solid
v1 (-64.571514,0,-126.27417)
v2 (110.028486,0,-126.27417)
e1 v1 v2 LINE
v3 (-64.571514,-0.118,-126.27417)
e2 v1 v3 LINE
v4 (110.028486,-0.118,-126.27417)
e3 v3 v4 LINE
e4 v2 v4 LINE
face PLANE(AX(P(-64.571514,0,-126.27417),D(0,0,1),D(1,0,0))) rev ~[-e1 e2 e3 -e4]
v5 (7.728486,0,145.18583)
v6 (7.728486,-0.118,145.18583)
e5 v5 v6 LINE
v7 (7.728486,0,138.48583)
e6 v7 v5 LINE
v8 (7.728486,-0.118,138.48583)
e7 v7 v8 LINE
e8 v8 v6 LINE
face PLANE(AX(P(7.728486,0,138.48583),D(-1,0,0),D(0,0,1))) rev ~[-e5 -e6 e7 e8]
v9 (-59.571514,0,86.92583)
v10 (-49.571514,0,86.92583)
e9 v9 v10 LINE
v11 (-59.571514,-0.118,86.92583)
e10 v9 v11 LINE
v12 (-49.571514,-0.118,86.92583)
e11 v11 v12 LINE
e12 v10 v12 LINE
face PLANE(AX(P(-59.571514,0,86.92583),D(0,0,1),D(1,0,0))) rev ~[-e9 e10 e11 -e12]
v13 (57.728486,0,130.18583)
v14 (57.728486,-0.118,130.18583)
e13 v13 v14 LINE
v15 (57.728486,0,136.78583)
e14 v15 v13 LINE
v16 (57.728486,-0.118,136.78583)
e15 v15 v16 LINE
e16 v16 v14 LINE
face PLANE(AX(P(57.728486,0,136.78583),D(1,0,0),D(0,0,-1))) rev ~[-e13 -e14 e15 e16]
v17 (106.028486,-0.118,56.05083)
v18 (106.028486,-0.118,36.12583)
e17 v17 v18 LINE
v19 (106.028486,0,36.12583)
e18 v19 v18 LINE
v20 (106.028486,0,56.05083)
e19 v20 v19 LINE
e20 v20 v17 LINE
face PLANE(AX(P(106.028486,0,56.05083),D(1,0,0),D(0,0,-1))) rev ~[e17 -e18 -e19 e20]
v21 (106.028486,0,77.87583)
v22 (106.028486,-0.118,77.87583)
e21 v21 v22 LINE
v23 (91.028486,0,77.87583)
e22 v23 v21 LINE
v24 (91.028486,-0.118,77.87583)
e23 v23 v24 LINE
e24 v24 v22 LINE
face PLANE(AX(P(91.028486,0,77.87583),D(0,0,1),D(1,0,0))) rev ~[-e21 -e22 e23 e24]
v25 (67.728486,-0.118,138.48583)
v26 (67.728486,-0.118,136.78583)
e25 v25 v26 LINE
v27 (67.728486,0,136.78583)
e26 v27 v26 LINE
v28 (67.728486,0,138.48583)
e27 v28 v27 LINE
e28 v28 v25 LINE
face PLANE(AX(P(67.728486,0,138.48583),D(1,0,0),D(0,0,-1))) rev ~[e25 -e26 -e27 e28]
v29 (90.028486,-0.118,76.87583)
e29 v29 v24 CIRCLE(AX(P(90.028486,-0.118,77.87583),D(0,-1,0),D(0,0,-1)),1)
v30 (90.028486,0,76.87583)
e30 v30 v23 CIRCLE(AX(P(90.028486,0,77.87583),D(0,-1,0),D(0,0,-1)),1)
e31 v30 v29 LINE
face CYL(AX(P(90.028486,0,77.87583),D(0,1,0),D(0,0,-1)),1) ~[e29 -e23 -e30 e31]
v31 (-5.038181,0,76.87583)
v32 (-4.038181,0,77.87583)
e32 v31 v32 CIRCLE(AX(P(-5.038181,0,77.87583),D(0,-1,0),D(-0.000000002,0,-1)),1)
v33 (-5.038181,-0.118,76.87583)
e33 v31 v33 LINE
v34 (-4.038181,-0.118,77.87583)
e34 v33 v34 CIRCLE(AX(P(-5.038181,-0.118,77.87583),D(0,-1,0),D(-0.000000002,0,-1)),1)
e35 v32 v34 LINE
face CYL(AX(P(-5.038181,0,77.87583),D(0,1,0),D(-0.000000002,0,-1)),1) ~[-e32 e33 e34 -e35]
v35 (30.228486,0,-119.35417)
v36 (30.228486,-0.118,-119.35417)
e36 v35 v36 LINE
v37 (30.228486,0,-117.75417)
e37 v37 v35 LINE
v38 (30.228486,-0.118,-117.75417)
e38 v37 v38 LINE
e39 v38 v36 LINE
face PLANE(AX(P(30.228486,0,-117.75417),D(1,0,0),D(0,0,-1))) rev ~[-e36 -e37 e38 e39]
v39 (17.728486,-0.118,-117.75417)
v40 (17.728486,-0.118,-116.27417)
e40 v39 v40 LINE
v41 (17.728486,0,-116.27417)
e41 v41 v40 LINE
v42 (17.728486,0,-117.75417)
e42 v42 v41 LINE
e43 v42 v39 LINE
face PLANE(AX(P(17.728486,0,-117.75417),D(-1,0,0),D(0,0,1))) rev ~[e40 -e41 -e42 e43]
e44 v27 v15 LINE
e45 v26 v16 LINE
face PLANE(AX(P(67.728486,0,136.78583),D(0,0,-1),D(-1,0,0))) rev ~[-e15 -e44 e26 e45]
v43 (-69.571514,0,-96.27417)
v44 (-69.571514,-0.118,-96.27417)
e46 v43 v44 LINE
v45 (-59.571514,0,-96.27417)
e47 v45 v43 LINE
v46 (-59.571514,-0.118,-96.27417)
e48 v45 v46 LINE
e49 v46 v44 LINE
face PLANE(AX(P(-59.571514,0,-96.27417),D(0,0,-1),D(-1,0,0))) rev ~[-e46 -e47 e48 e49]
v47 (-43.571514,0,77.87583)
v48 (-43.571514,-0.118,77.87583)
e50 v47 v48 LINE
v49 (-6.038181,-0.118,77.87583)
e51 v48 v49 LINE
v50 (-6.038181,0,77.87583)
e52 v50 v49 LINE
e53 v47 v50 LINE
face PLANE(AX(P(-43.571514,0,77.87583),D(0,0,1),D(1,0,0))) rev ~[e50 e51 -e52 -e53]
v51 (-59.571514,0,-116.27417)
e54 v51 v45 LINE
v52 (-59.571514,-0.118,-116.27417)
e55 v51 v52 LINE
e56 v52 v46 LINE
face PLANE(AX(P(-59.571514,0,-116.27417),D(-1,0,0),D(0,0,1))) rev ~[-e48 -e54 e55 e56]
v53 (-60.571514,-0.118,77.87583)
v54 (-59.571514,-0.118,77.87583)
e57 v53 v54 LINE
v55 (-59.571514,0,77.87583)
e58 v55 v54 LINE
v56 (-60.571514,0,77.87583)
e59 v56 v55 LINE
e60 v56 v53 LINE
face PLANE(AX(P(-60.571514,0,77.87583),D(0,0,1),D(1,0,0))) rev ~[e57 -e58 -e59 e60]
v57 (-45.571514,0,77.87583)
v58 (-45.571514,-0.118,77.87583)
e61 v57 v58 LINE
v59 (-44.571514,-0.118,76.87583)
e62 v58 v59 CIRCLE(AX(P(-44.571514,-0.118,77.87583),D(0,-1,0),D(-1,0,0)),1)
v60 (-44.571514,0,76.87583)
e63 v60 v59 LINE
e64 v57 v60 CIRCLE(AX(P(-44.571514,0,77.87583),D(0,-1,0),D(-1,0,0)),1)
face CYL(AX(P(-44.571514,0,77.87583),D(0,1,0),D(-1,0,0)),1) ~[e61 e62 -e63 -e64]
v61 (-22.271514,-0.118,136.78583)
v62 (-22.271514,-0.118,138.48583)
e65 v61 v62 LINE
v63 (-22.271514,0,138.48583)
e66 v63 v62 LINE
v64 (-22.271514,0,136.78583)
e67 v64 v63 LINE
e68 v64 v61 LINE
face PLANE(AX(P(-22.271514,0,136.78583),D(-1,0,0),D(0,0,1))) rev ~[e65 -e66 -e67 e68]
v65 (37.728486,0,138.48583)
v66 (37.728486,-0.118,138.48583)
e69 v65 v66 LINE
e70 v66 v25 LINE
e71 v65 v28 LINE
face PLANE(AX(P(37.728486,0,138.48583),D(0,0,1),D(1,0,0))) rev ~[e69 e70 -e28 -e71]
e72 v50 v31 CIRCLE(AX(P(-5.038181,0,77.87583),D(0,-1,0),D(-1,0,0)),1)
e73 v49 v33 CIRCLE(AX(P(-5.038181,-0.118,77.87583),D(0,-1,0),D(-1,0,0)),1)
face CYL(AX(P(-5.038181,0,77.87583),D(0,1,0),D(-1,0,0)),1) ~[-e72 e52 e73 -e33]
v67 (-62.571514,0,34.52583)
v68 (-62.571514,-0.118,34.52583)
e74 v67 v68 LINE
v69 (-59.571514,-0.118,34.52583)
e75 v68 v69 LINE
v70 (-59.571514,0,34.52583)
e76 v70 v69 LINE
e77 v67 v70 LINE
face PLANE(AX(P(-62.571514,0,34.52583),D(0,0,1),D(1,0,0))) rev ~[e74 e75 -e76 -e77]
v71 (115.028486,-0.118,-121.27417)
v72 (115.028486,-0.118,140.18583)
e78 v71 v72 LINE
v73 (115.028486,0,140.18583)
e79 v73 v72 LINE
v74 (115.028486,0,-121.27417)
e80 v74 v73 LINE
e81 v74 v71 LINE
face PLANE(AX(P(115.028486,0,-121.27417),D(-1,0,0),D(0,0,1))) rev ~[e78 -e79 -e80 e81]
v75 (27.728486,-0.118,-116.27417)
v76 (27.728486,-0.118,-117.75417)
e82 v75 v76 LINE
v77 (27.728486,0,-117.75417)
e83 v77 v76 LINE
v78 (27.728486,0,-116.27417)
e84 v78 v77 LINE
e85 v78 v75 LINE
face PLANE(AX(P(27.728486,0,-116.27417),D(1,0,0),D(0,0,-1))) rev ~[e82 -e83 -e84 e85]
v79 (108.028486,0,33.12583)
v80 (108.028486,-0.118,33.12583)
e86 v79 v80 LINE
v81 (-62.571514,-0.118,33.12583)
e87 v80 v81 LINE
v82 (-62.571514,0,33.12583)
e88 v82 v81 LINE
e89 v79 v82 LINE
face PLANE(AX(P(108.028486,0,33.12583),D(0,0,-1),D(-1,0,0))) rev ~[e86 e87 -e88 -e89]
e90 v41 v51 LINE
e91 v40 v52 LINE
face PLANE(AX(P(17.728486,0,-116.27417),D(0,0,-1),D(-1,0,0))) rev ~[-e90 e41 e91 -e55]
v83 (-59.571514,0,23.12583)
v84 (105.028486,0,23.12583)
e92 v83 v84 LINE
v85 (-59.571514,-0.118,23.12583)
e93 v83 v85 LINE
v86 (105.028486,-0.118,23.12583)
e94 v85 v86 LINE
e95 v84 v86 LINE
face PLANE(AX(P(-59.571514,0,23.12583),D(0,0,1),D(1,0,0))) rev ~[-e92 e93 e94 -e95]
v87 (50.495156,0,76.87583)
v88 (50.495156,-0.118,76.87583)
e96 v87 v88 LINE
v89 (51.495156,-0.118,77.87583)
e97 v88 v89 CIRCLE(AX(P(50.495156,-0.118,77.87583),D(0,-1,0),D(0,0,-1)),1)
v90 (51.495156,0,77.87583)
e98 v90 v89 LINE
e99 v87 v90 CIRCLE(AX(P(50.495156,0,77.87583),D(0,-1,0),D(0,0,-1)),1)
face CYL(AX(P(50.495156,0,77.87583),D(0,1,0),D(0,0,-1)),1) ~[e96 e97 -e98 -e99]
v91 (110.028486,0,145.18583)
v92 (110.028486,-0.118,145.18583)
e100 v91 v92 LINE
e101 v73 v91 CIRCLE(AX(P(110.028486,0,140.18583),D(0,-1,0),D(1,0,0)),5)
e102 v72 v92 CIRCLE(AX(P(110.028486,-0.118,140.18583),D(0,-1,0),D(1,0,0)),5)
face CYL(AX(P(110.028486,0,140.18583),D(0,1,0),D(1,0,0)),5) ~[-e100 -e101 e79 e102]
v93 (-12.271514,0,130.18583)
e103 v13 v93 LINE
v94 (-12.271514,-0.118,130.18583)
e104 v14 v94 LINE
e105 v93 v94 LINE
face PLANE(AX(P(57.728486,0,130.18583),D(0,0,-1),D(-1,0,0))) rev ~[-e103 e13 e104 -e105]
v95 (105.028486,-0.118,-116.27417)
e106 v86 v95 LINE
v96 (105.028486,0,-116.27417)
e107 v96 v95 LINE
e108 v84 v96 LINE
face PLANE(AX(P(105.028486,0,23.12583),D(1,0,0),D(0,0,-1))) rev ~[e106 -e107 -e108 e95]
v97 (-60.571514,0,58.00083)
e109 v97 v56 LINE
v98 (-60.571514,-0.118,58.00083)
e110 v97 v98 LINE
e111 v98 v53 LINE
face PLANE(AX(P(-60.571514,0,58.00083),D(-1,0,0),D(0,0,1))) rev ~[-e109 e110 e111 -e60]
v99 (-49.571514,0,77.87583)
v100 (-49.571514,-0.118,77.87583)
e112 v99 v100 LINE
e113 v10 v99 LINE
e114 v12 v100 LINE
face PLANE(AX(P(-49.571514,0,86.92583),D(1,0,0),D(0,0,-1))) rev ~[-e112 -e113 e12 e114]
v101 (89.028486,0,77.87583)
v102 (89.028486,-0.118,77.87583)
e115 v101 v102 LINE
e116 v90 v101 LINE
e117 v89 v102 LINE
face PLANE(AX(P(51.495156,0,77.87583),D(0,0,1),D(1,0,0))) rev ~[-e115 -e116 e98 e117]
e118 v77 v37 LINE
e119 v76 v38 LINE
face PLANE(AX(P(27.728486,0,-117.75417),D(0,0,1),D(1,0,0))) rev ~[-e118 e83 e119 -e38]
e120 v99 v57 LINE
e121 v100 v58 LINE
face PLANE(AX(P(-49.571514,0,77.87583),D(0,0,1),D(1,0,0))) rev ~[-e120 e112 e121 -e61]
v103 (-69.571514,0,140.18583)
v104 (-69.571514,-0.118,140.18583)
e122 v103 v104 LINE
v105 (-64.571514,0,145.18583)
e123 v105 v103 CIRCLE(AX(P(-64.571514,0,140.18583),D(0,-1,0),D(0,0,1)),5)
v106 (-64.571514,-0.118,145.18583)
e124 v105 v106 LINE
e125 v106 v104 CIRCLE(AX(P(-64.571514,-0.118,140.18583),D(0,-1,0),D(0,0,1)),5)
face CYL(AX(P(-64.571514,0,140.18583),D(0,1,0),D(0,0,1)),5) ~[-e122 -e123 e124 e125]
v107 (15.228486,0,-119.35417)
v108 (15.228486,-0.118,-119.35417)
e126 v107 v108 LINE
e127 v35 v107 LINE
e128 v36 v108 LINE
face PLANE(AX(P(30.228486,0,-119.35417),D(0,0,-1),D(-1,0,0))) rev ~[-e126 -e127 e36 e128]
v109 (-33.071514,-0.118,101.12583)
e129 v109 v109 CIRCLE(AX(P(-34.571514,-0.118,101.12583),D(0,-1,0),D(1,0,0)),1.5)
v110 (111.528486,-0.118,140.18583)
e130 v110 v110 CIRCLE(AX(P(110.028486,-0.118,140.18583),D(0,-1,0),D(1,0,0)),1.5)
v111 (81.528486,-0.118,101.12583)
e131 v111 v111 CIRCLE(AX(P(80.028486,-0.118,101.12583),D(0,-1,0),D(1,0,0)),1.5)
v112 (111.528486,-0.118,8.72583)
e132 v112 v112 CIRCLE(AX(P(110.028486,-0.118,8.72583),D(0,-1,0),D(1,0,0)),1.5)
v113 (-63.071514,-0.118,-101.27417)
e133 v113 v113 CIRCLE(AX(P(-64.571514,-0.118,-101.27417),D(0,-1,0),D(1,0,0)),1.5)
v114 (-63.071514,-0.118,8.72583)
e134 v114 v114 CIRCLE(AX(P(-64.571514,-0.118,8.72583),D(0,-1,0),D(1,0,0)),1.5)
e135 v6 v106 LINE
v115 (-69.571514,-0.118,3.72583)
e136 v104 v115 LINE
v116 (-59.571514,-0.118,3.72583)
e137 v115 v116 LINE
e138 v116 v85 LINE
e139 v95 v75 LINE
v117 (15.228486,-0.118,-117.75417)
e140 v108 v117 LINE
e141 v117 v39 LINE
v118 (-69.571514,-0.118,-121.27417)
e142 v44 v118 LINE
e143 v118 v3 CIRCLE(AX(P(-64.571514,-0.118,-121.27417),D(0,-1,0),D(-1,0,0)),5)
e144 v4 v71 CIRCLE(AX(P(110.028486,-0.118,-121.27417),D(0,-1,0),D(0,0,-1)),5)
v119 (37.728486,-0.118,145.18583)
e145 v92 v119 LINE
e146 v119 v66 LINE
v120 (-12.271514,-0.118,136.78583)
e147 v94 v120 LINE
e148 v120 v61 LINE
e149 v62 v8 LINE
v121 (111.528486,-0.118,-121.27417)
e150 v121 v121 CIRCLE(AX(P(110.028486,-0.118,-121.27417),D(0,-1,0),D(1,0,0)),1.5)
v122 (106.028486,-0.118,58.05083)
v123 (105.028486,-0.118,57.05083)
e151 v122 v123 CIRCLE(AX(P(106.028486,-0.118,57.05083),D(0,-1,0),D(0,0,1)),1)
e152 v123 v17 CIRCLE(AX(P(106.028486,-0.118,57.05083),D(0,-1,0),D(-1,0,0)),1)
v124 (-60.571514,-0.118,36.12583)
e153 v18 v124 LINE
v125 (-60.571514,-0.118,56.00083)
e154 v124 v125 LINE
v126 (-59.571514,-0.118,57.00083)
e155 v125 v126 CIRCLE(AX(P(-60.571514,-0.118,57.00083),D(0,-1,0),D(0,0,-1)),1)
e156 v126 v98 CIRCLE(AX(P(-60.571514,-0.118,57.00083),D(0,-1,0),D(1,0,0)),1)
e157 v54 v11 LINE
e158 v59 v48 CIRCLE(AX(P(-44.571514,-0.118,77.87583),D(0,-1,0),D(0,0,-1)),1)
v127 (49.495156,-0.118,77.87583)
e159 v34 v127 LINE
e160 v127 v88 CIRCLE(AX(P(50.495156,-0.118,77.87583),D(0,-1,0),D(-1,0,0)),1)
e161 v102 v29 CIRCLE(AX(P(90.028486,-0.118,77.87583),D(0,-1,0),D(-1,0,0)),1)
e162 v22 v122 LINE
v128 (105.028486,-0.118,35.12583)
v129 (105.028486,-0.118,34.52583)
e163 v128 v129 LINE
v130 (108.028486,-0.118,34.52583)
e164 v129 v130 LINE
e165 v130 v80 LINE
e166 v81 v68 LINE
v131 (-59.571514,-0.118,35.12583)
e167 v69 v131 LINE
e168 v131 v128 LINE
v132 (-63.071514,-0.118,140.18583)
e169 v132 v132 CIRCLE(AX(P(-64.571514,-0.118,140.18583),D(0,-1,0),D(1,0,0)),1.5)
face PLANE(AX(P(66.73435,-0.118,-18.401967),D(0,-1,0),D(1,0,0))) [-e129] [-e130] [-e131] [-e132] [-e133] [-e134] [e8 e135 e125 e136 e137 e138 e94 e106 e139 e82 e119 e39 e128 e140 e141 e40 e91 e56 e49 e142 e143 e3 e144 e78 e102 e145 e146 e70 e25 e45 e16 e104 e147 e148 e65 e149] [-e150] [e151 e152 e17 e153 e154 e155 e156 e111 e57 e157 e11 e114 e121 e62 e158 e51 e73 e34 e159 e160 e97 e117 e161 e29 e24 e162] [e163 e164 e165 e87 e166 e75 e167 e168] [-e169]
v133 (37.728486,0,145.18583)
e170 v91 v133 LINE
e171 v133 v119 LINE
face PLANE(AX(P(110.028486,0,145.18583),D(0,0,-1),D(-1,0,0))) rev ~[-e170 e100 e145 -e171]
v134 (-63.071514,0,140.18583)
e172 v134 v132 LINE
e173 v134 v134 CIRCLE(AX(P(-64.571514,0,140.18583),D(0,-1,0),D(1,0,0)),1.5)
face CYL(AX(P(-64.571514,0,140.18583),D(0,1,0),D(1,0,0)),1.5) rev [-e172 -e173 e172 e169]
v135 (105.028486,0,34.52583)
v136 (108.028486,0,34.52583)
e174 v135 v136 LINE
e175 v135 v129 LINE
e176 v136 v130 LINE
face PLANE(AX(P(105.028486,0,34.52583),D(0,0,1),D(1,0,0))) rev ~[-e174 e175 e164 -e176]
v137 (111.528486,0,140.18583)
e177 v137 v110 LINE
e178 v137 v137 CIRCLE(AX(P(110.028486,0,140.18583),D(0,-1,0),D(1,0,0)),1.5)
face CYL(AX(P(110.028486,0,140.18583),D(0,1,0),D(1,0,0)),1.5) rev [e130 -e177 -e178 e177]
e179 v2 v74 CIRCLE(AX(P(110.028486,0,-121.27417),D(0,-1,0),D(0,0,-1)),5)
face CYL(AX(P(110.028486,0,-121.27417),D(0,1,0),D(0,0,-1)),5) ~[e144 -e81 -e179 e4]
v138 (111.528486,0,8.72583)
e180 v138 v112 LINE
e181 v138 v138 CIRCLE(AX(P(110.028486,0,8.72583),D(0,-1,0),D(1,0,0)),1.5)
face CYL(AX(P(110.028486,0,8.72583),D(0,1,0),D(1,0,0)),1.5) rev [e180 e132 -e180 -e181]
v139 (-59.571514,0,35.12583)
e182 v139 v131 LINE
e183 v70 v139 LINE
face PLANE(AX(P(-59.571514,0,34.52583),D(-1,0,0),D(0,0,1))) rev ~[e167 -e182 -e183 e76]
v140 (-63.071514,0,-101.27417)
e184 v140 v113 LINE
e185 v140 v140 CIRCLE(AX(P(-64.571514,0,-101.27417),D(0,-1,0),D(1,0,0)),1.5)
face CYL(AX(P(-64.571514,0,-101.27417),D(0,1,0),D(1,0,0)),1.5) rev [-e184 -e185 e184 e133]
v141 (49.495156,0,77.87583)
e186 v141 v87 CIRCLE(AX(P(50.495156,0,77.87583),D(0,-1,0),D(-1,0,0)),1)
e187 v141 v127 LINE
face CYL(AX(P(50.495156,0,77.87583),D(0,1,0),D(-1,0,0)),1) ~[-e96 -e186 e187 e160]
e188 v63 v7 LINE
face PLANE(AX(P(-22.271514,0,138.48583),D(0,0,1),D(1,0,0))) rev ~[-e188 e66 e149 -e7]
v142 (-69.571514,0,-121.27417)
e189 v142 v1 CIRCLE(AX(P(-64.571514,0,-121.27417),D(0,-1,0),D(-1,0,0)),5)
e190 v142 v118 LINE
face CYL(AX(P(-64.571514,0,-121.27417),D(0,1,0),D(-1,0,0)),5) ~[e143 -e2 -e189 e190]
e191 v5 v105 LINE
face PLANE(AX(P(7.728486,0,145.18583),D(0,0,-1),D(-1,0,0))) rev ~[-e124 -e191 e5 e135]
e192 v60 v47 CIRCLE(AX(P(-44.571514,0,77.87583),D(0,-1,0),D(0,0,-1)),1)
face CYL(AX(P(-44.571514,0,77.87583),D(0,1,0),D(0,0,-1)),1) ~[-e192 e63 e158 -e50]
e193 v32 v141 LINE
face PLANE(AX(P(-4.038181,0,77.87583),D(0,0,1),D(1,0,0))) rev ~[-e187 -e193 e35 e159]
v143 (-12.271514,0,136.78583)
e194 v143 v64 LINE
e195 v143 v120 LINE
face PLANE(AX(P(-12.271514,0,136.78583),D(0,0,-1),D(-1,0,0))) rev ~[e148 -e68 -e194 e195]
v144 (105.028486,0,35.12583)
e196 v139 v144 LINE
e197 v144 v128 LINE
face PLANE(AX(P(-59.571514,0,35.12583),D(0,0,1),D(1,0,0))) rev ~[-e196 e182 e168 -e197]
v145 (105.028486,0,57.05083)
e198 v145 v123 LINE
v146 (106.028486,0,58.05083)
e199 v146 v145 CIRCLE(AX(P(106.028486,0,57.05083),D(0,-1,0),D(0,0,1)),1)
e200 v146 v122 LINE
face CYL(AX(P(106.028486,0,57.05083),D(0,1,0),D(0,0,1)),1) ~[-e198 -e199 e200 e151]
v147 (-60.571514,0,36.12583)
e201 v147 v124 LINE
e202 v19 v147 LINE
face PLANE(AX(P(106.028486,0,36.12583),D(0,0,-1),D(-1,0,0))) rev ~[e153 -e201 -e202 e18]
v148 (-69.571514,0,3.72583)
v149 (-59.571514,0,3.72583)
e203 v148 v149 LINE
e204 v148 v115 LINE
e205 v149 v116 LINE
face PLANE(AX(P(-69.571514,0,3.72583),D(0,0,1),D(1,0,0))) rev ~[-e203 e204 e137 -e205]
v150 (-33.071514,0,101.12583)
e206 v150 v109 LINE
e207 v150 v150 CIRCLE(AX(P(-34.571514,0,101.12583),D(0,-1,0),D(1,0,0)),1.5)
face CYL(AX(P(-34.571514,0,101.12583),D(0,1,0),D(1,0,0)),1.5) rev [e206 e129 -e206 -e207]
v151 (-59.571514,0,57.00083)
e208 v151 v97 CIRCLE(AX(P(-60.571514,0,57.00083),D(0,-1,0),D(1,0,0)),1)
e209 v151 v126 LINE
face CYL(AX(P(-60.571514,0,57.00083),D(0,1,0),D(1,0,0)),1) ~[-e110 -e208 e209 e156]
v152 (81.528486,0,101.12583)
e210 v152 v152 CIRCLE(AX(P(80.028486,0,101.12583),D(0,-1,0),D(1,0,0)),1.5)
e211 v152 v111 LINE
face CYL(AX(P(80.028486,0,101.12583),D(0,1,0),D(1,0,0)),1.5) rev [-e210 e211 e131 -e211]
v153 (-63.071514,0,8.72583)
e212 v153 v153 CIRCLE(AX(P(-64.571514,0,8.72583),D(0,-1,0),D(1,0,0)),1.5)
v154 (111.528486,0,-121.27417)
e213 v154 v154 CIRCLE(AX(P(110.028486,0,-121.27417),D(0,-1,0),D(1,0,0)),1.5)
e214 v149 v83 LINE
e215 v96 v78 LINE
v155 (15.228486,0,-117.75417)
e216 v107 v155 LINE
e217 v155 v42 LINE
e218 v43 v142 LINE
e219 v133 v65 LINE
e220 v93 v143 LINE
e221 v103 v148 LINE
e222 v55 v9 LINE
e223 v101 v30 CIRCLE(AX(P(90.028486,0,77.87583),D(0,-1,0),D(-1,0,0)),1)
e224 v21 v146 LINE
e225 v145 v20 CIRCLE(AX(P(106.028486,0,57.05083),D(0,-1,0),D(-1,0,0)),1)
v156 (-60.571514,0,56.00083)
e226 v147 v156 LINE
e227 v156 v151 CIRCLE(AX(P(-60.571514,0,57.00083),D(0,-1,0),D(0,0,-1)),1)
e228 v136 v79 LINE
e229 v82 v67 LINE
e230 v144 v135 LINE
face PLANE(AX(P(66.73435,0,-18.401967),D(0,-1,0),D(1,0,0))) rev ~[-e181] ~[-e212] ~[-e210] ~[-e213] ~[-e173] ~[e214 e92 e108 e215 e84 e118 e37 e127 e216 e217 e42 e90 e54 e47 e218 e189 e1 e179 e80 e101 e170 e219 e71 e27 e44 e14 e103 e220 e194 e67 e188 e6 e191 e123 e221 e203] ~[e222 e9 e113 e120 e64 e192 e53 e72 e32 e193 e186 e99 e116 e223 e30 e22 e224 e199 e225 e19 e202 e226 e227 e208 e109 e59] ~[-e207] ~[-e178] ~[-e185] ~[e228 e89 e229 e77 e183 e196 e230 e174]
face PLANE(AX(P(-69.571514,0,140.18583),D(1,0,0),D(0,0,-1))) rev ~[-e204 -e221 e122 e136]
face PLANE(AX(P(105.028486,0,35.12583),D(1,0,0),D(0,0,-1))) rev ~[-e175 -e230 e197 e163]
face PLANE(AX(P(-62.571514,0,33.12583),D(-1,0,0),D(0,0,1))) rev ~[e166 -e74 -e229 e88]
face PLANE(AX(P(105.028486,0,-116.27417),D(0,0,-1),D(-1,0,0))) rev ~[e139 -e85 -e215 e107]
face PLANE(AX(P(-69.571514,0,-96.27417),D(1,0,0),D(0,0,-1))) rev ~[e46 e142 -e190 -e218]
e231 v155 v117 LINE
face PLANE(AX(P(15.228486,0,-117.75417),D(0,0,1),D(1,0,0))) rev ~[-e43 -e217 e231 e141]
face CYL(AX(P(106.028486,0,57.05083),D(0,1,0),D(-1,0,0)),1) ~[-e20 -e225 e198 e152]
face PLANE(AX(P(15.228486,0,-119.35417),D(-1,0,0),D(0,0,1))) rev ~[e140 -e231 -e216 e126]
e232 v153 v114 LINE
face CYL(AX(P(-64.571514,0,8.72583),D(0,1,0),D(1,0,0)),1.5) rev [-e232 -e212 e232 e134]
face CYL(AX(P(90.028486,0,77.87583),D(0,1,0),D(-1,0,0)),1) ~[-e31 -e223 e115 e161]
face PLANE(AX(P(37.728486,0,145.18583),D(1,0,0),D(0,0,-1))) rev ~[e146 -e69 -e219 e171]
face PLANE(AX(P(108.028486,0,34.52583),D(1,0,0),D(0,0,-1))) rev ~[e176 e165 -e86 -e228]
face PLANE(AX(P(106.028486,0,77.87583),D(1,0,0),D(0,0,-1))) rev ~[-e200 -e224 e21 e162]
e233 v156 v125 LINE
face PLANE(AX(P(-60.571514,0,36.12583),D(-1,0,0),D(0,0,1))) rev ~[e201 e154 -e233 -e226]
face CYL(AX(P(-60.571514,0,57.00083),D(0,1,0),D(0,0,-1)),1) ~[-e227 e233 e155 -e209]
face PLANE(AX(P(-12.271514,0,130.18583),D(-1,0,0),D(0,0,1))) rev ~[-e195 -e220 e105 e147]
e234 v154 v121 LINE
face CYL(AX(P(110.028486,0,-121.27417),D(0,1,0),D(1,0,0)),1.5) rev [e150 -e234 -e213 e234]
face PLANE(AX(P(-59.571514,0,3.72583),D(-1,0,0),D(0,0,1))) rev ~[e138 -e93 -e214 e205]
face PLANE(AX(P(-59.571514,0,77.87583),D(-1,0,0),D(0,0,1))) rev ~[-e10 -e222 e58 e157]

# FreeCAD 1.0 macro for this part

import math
import FreeCAD as App
import Part
import Sketcher

V = App.Vector

doc = App.newDocument("Part")
params = doc.addObject("Spreadsheet::Sheet", "Params")
for row, (alias, value) in enumerate([
    ("sketch1_diameter", "3 mm"),
    ("sketch1_radius", "5 mm"),
    ("sketch1_radius2", "1 mm"),
    ("sketch1_width", "30 mm"),
    ("sketch1_width2", "10 mm"),
    ("pad1_length", "0.118 mm"),
], start=1):
    params.set(f"A{row}", alias)
    params.set(f"B{row}", "=" + value)
    params.setAlias(f"B{row}", alias)

body = doc.addObject("PartDesign::Body", "Body")

sketch1 = body.newObject("Sketcher::SketchObject", "Sketch")
sketch1.AttachmentSupport = (doc.getObject("XZ_Plane"), [""])
sketch1.MapMode = "FlatFace"
sketch1.addGeometry([
    Part.LineSegment(V(110, 145.2, 0), V(37.7, 145.2, 0)),
    Part.LineSegment(V(37.7, 145.2, 0), V(37.7, 138.5, 0)),
    Part.LineSegment(V(37.7, 138.5, 0), V(67.7, 138.5, 0)),
    Part.LineSegment(V(67.7, 138.5, 0), V(67.7, 136.8, 0)),
    Part.LineSegment(V(67.7, 136.8, 0), V(57.7, 136.8, 0)),
    Part.LineSegment(V(57.7, 136.8, 0), V(57.7, 130.2, 0)),
    Part.LineSegment(V(57.7, 130.2, 0), V(-12.3, 130.2, 0)),
    Part.LineSegment(V(-12.3, 130.2, 0), V(-12.3, 136.8, 0)),
    Part.LineSegment(V(-12.3, 136.8, 0), V(-22.3, 136.8, 0)),
    Part.LineSegment(V(-22.3, 136.8, 0), V(-22.3, 138.5, 0)),
    Part.LineSegment(V(-22.3, 138.5, 0), V(7.7, 138.5, 0)),
    Part.LineSegment(V(7.7, 138.5, 0), V(7.7, 145.2, 0)),
    Part.LineSegment(V(7.7, 145.2, 0), V(-64.6, 145.2, 0)),
    Part.ArcOfCircle(Part.Circle(V(-64.6, 140.2, 0), V(0, 0, 1), 5), math.radians(90), math.radians(180)),
    Part.LineSegment(V(-69.6, 140.2, 0), V(-69.6, 3.7, 0)),
    Part.LineSegment(V(-69.6, 3.7, 0), V(-59.6, 3.7, 0)),
    Part.LineSegment(V(-59.6, 3.7, 0), V(-59.6, 23.1, 0)),
    Part.LineSegment(V(-59.6, 23.1, 0), V(105, 23.1, 0)),
    Part.LineSegment(V(105, 23.1, 0), V(105, -116.3, 0)),
    Part.LineSegment(V(105, -116.3, 0), V(27.7, -116.3, 0)),
    Part.LineSegment(V(27.7, -116.3, 0), V(27.7, -117.8, 0)),
    Part.LineSegment(V(27.7, -117.8, 0), V(30.2, -117.8, 0)),
    Part.LineSegment(V(30.2, -117.8, 0), V(30.2, -119.4, 0)),
    Part.LineSegment(V(30.2, -119.4, 0), V(15.2, -119.4, 0)),
    Part.LineSegment(V(15.2, -119.4, 0), V(15.2, -117.8, 0)),
    Part.LineSegment(V(15.2, -117.8, 0), V(17.7, -117.8, 0)),
    Part.LineSegment(V(17.7, -117.8, 0), V(17.7, -116.3, 0)),
    Part.LineSegment(V(17.7, -116.3, 0), V(-59.6, -116.3, 0)),
    Part.LineSegment(V(-59.6, -116.3, 0), V(-59.6, -96.3, 0)),
    Part.LineSegment(V(-59.6, -96.3, 0), V(-69.6, -96.3, 0)),
    Part.LineSegment(V(-69.6, -96.3, 0), V(-69.6, -121.3, 0)),
    Part.ArcOfCircle(Part.Circle(V(-64.6, -121.3, 0), V(0, 0, 1), 5), math.radians(-180), math.radians(-90)),
    Part.LineSegment(V(-64.6, -126.3, 0), V(110, -126.3, 0)),
    Part.ArcOfCircle(Part.Circle(V(110, -121.3, 0), V(0, 0, 1), 5), math.radians(-90), math.radians(0)),
    Part.LineSegment(V(115, -121.3, 0), V(115, 140.2, 0)),
    Part.ArcOfCircle(Part.Circle(V(110, 140.2, 0), V(0, 0, 1), 5), math.radians(0), math.radians(90)),
    Part.ArcOfCircle(Part.Circle(V(50.5, 77.9, 0), V(0, 0, 1), 1), math.radians(180), math.radians(270)),
    Part.ArcOfCircle(Part.Circle(V(50.5, 77.9, 0), V(0, 0, 1), 1), math.radians(-90), math.radians(0)),
    Part.LineSegment(V(51.5, 77.9, 0), V(89, 77.9, 0)),
    Part.ArcOfCircle(Part.Circle(V(90, 77.9, 0), V(0, 0, 1), 1), math.radians(180), math.radians(270)),
    Part.ArcOfCircle(Part.Circle(V(90, 77.9, 0), V(0, 0, 1), 1), math.radians(-90), math.radians(0)),
    Part.LineSegment(V(91, 77.9, 0), V(106, 77.9, 0)),
    Part.LineSegment(V(106, 77.9, 0), V(106, 58.1, 0)),
    Part.ArcOfCircle(Part.Circle(V(106, 57.1, 0), V(0, 0, 1), 1), math.radians(90), math.radians(180)),
    Part.ArcOfCircle(Part.Circle(V(106, 57.1, 0), V(0, 0, 1), 1), math.radians(180), math.radians(270)),
    Part.LineSegment(V(106, 56.1, 0), V(106, 36.1, 0)),
    Part.LineSegment(V(106, 36.1, 0), V(-60.6, 36.1, 0)),
    Part.LineSegment(V(-60.6, 36.1, 0), V(-60.6, 56, 0)),
    Part.ArcOfCircle(Part.Circle(V(-60.6, 57, 0), V(0, 0, 1), 1), math.radians(-90), math.radians(0)),
    Part.ArcOfCircle(Part.Circle(V(-60.6, 57, 0), V(0, 0, 1), 1), math.radians(0), math.radians(90)),
    Part.LineSegment(V(-60.6, 58, 0), V(-60.6, 77.9, 0)),
    Part.LineSegment(V(-60.6, 77.9, 0), V(-59.6, 77.9, 0)),
    Part.LineSegment(V(-59.6, 77.9, 0), V(-59.6, 86.9, 0)),
    Part.LineSegment(V(-59.6, 86.9, 0), V(-49.6, 86.9, 0)),
    Part.LineSegment(V(-49.6, 86.9, 0), V(-49.6, 77.9, 0)),
    Part.LineSegment(V(-49.6, 77.9, 0), V(-45.6, 77.9, 0)),
    Part.ArcOfCircle(Part.Circle(V(-44.6, 77.9, 0), V(0, 0, 1), 1), math.radians(180), math.radians(270)),
    Part.ArcOfCircle(Part.Circle(V(-44.6, 77.9, 0), V(0, 0, 1), 1), math.radians(-90), math.radians(0)),
    Part.LineSegment(V(-43.6, 77.9, 0), V(-6, 77.9, 0)),
    Part.ArcOfCircle(Part.Circle(V(-5, 77.9, 0), V(0, 0, 1), 1), math.radians(180), math.radians(270)),
    Part.ArcOfCircle(Part.Circle(V(-5, 77.9, 0), V(0, 0, 1), 1), math.radians(-90), math.radians(0)),
    Part.LineSegment(V(-4, 77.9, 0), V(49.5, 77.9, 0)),
    Part.LineSegment(V(-62.6, 33.1, 0), V(-62.6, 34.5, 0)),
    Part.LineSegment(V(-62.6, 34.5, 0), V(-59.6, 34.5, 0)),
    Part.LineSegment(V(-59.6, 34.5, 0), V(-59.6, 35.1, 0)),
    Part.LineSegment(V(-59.6, 35.1, 0), V(105, 35.1, 0)),
    Part.LineSegment(V(105, 35.1, 0), V(105, 34.5, 0)),
    Part.LineSegment(V(105, 34.5, 0), V(108, 34.5, 0)),
    Part.LineSegment(V(108, 34.5, 0), V(108, 33.1, 0)),
    Part.LineSegment(V(108, 33.1, 0), V(-62.6, 33.1, 0)),
    Part.Circle(V(-64.6, -101.3, 0), V(0, 0, 1), 1.5),
    Part.Circle(V(110, -121.3, 0), V(0, 0, 1), 1.5),
    Part.Circle(V(110, 8.7, 0), V(0, 0, 1), 1.5),
    Part.Circle(V(80, 101.1, 0), V(0, 0, 1), 1.5),
    Part.Circle(V(110, 140.2, 0), V(0, 0, 1), 1.5),
    Part.Circle(V(-34.6, 101.1, 0), V(0, 0, 1), 1.5),
    Part.Circle(V(-64.6, 8.7, 0), V(0, 0, 1), 1.5),
    Part.Circle(V(-64.6, 140.2, 0), V(0, 0, 1), 1.5),
], False)
sketch1.addConstraint([
    Sketcher.Constraint("Coincident", 0, 2, 1, 1),
    Sketcher.Constraint("Coincident", 1, 2, 2, 1),
    Sketcher.Constraint("Coincident", 2, 2, 3, 1),
    Sketcher.Constraint("Coincident", 3, 2, 4, 1),
    Sketcher.Constraint("Coincident", 4, 2, 5, 1),
    Sketcher.Constraint("Coincident", 5, 2, 6, 1),
    Sketcher.Constraint("Coincident", 6, 2, 7, 1),
    Sketcher.Constraint("Coincident", 7, 2, 8, 1),
    Sketcher.Constraint("Coincident", 8, 2, 9, 1),
    Sketcher.Constraint("Coincident", 9, 2, 10, 1),
    Sketcher.Constraint("Coincident", 10, 2, 11, 1),
    Sketcher.Constraint("Coincident", 11, 2, 12, 1),
    Sketcher.Constraint("Tangent", 12, 2, 13, 1),
    Sketcher.Constraint("Tangent", 13, 2, 14, 1),
    Sketcher.Constraint("Coincident", 14, 2, 15, 1),
    Sketcher.Constraint("Coincident", 15, 2, 16, 1),
    Sketcher.Constraint("Coincident", 16, 2, 17, 1),
    Sketcher.Constraint("Coincident", 17, 2, 18, 1),
    Sketcher.Constraint("Coincident", 18, 2, 19, 1),
    Sketcher.Constraint("Coincident", 19, 2, 20, 1),
    Sketcher.Constraint("Coincident", 20, 2, 21, 1),
    Sketcher.Constraint("Coincident", 21, 2, 22, 1),
    Sketcher.Constraint("Coincident", 22, 2, 23, 1),
    Sketcher.Constraint("Coincident", 23, 2, 24, 1),
    Sketcher.Constraint("Coincident", 24, 2, 25, 1),
    Sketcher.Constraint("Coincident", 25, 2, 26, 1),
    Sketcher.Constraint("Coincident", 26, 2, 27, 1),
    Sketcher.Constraint("Coincident", 27, 2, 28, 1),
    Sketcher.Constraint("Coincident", 28, 2, 29, 1),
    Sketcher.Constraint("Coincident", 29, 2, 30, 1),
    Sketcher.Constraint("Tangent", 30, 2, 31, 1),
    Sketcher.Constraint("Tangent", 31, 2, 32, 1),
    Sketcher.Constraint("Tangent", 32, 2, 33, 1),
    Sketcher.Constraint("Tangent", 33, 2, 34, 1),
    Sketcher.Constraint("Tangent", 34, 2, 35, 1),
    Sketcher.Constraint("Tangent", 35, 2, 0, 1),
    Sketcher.Constraint("Tangent", 36, 2, 37, 1),
    Sketcher.Constraint("Coincident", 37, 2, 38, 1),
    Sketcher.Constraint("Coincident", 38, 2, 39, 1),
    Sketcher.Constraint("Tangent", 39, 2, 40, 1),
    Sketcher.Constraint("Coincident", 40, 2, 41, 1),
    Sketcher.Constraint("Coincident", 41, 2, 42, 1),
    Sketcher.Constraint("Coincident", 42, 2, 43, 1),
    Sketcher.Constraint("Tangent", 43, 2, 44, 1),
    Sketcher.Constraint("Coincident", 44, 2, 45, 1),
    Sketcher.Constraint("Coincident", 45, 2, 46, 1),
    Sketcher.Constraint("Coincident", 46, 2, 47, 1),
    Sketcher.Constraint("Coincident", 47, 2, 48, 1),
    Sketcher.Constraint("Tangent", 48, 2, 49, 1),
    Sketcher.Constraint("Coincident", 49, 2, 50, 1),
    Sketcher.Constraint("Coincident", 50, 2, 51, 1),
    Sketcher.Constraint("Coincident", 51, 2, 52, 1),
    Sketcher.Constraint("Coincident", 52, 2, 53, 1),
    Sketcher.Constraint("Coincident", 53, 2, 54, 1),
    Sketcher.Constraint("Coincident", 54, 2, 55, 1),
    Sketcher.Constraint("Coincident", 55, 2, 56, 1),
    Sketcher.Constraint("Tangent", 56, 2, 57, 1),
    Sketcher.Constraint("Coincident", 57, 2, 58, 1),
    Sketcher.Constraint("Coincident", 58, 2, 59, 1),
    Sketcher.Constraint("Tangent", 59, 2, 60, 1),
    Sketcher.Constraint("Coincident", 60, 2, 61, 1),
    Sketcher.Constraint("Coincident", 61, 2, 36, 1),
    Sketcher.Constraint("Coincident", 62, 2, 63, 1),
    Sketcher.Constraint("Coincident", 63, 2, 64, 1),
    Sketcher.Constraint("Coincident", 64, 2, 65, 1),
    Sketcher.Constraint("Coincident", 65, 2, 66, 1),
    Sketcher.Constraint("Coincident", 66, 2, 67, 1),
    Sketcher.Constraint("Coincident", 67, 2, 68, 1),
    Sketcher.Constraint("Coincident", 68, 2, 69, 1),
    Sketcher.Constraint("Coincident", 69, 2, 62, 1),
    Sketcher.Constraint("Horizontal", 0),
    Sketcher.Constraint("Vertical", 1),
    Sketcher.Constraint("Horizontal", 2),
    Sketcher.Constraint("Vertical", 3),
    Sketcher.Constraint("Horizontal", 4),
    Sketcher.Constraint("Vertical", 5),
    Sketcher.Constraint("Horizontal", 6),
    Sketcher.Constraint("Vertical", 7),
    Sketcher.Constraint("Horizontal", 8),
    Sketcher.Constraint("Vertical", 9),
    Sketcher.Constraint("Horizontal", 10),
    Sketcher.Constraint("Vertical", 11),
    Sketcher.Constraint("Horizontal", 12),
    Sketcher.Constraint("Vertical", 14),
    Sketcher.Constraint("Horizontal", 15),
    Sketcher.Constraint("Vertical", 16),
    Sketcher.Constraint("Horizontal", 17),
    Sketcher.Constraint("Vertical", 18),
    Sketcher.Constraint("Horizontal", 19),
    Sketcher.Constraint("Vertical", 20),
    Sketcher.Constraint("Horizontal", 21),
    Sketcher.Constraint("Vertical", 22),
    Sketcher.Constraint("Horizontal", 23),
    Sketcher.Constraint("Vertical", 24),
    Sketcher.Constraint("Horizontal", 25),
    Sketcher.Constraint("Vertical", 26),
    Sketcher.Constraint("Horizontal", 27),
    Sketcher.Constraint("Vertical", 28),
    Sketcher.Constraint("Horizontal", 29),
    Sketcher.Constraint("Vertical", 30),
    Sketcher.Constraint("Horizontal", 32),
    Sketcher.Constraint("Vertical", 34),
    Sketcher.Constraint("Horizontal", 38),
    Sketcher.Constraint("Horizontal", 41),
    Sketcher.Constraint("Vertical", 42),
    Sketcher.Constraint("Vertical", 45),
    Sketcher.Constraint("Horizontal", 46),
    Sketcher.Constraint("Vertical", 47),
    Sketcher.Constraint("Vertical", 50),
    Sketcher.Constraint("Horizontal", 51),
    Sketcher.Constraint("Vertical", 52),
    Sketcher.Constraint("Horizontal", 53),
    Sketcher.Constraint("Vertical", 54),
    Sketcher.Constraint("Horizontal", 55),
    Sketcher.Constraint("Horizontal", 58),
    Sketcher.Constraint("Horizontal", 61),
    Sketcher.Constraint("Vertical", 62),
    Sketcher.Constraint("Horizontal", 63),
    Sketcher.Constraint("Vertical", 64),
    Sketcher.Constraint("Horizontal", 65),
    Sketcher.Constraint("Vertical", 66),
    Sketcher.Constraint("Horizontal", 67),
    Sketcher.Constraint("Vertical", 68),
    Sketcher.Constraint("Horizontal", 69),
    Sketcher.Constraint("Coincident", 71, 3, 33, 3),
    Sketcher.Constraint("Coincident", 74, 3, 35, 3),
    Sketcher.Constraint("Coincident", 77, 3, 13, 3),
    Sketcher.Constraint("Equal", 13, 31),
    Sketcher.Constraint("Equal", 31, 33),
    Sketcher.Constraint("Equal", 33, 35),
    Sketcher.Constraint("Equal", 36, 37),
    Sketcher.Constraint("Equal", 37, 39),
    Sketcher.Constraint("Equal", 39, 40),
    Sketcher.Constraint("Equal", 40, 43),
    Sketcher.Constraint("Equal", 43, 44),
    Sketcher.Constraint("Equal", 44, 48),
    Sketcher.Constraint("Equal", 48, 49),
    Sketcher.Constraint("Equal", 49, 56),
    Sketcher.Constraint("Equal", 56, 57),
    Sketcher.Constraint("Equal", 57, 59),
    Sketcher.Constraint("Equal", 59, 60),
    Sketcher.Constraint("Equal", 70, 71),
    Sketcher.Constraint("Equal", 71, 72),
    Sketcher.Constraint("Equal", 72, 73),
    Sketcher.Constraint("Equal", 73, 74),
    Sketcher.Constraint("Equal", 74, 75),
    Sketcher.Constraint("Equal", 75, 76),
    Sketcher.Constraint("Equal", 76, 77),
    Sketcher.Constraint("Horizontal", 13, 3, 35, 3),
    Sketcher.Constraint("Horizontal", 37, 3, 39, 3),
    Sketcher.Constraint("Horizontal", 40, 3, 56, 3),
    Sketcher.Constraint("Horizontal", 57, 3, 59, 3),
    Sketcher.Constraint("Horizontal", 73, 3, 75, 3),
    Sketcher.Constraint("Horizontal", 72, 3, 76, 3),
    Sketcher.Constraint("Horizontal", 4, 2, 7, 2),
    Sketcher.Constraint("Horizontal", 2, 2, 9, 2),
    Sketcher.Constraint("Horizontal", 21, 2, 24, 2),
    Sketcher.Constraint("Horizontal", 19, 2, 26, 2),
    Sketcher.Constraint("Horizontal", 60, 3, 37, 2),
    Sketcher.Constraint("Horizontal", 38, 2, 40, 2),
    Sketcher.Constraint("Horizontal", 44, 3, 43, 2),
    Sketcher.Constraint("Horizontal", 49, 3, 48, 2),
    Sketcher.Constraint("Horizontal", 41, 2, 50, 2),
    Sketcher.Constraint("Horizontal", 51, 2, 54, 2),
    Sketcher.Constraint("Horizontal", 55, 2, 57, 2),
    Sketcher.Constraint("Horizontal", 58, 2, 60, 2),
    Sketcher.Constraint("Horizontal", 63, 2, 66, 2),
    Sketcher.Constraint("Vertical", 13, 3, 31, 3),
    Sketcher.Constraint("Vertical", 31, 3, 70, 3),
    Sketcher.Constraint("Vertical", 71, 3, 72, 3),
    Sketcher.Constraint("Vertical", 70, 3, 76, 3),
    Sketcher.Constraint("Vertical", 16, 2, 27, 2),
    Sketcher.Constraint("Vertical", 37, 3, 36, 2),
    Sketcher.Constraint("Vertical", 40, 3, 39, 2),
    Sketcher.Constraint("Vertical", 44, 3, 41, 2),
    Sketcher.Constraint("Vertical", 18, 2, 43, 2),
    Sketcher.Constraint("Vertical", 42, 2, 44, 2),
    Sketcher.Constraint("Vertical", 49, 3, 46, 2),
    Sketcher.Constraint("Vertical", 28, 2, 48, 2),
    Sketcher.Constraint("Vertical", 47, 2, 49, 2),
    Sketcher.Constraint("Vertical", 48, 2, 51, 2),
    Sketcher.Constraint("Vertical", 57, 3, 56, 2),
    Sketcher.Constraint("Vertical", 60, 3, 59, 2),
    Sketcher.Constraint("Vertical", 52, 2, 63, 2),
    Sketcher.Constraint("Vertical", 43, 2, 65, 2),
    Sketcher.Constraint("Equal", 4, 8),
    Sketcher.Constraint("Equal", 2, 10),
    Sketcher.Constraint("Equal", 0, 12),
    Sketcher.Constraint("Equal", 8, 15),
    Sketcher.Constraint("Equal", 21, 25),
    Sketcher.Constraint("Equal", 19, 27),
    Sketcher.Constraint("Equal", 23, 41),
    Sketcher.Constraint("Equal", 29, 53),
    Sketcher.Constraint("Equal", 63, 67),
    Sketcher.Constraint("Equal", 47, 50),
    Sketcher.Constraint("Diameter", 70, 3.0),
    Sketcher.Constraint("Radius", 13, 5.0),
    Sketcher.Constraint("Radius", 36, 1.0),
    Sketcher.Constraint("DistanceX", 2, 1, 2, 2, 30.0),
    Sketcher.Constraint("DistanceX", 4, 2, 4, 1, 10.0),
    Sketcher.Constraint("DistanceX", 6, 2, 6, 1, 70.0),
    Sketcher.Constraint("DistanceX", 23, 2, 23, 1, 15.0),
    Sketcher.Constraint("DistanceX", 55, 1, 55, 2, 4.0),
    Sketcher.Constraint("DistanceX", 63, 1, 63, 2, 3.0),
    Sketcher.Constraint("DistanceY", 28, 1, 28, 2, 20.0),
    Sketcher.Constraint("DistanceY", 30, 2, 30, 1, 25.0),
    Sketcher.Constraint("DistanceX", 0, 2, 0, 1, 72.3),
    Sketcher.Constraint("DistanceX", 17, 1, 17, 2, 164.6),
    Sketcher.Constraint("DistanceX", 19, 2, 19, 1, 77.3),
    Sketcher.Constraint("DistanceY", 1, 2, 1, 1, 6.7),
    Sketcher.Constraint("DistanceY", 3, 2, 3, 1, 1.7),
    Sketcher.Constraint("DistanceY", 5, 2, 5, 1, 6.6),
    Sketcher.Constraint("DistanceY", 16, 1, 16, 2, 19.4),
    Sketcher.Constraint("DistanceY", 18, 2, 18, 1, 139.4),
    Sketcher.Constraint("DistanceY", 22, 2, 22, 1, 1.6),
    Sketcher.Constraint("DistanceY", 62, 1, 62, 2, 1.4),
    Sketcher.Constraint("DistanceY", 64, 1, 64, 2, 0.6),
    Sketcher.Constraint("DistanceY", 14, 2, 14, 1, 136.46),
    Sketcher.Constraint("DistanceY", 20, 2, 20, 1, 1.48),
    Sketcher.Constraint("DistanceY", 52, 1, 52, 2, 9.05),
    Sketcher.Constraint("DistanceY", 42, 2, 42, 1, 19.825),
    Sketcher.Constraint("DistanceY", 45, 2, 45, 1, 19.925),
    Sketcher.Constraint("DistanceX", 38, 1, 38, 2, 37.53333),
    Sketcher.Constraint("DistanceX", 58, 1, 58, 2, 37.533333),
    Sketcher.Constraint("DistanceY", -1, 1, 13, 3, 140.18583),
    Sketcher.Constraint("DistanceY", -1, 1, 36, 3, 77.87583),
    Sketcher.Constraint("DistanceX", 59, 3, -1, 1, 5.038181),
    Sketcher.Constraint("DistanceY", 70, 3, -1, 1, 101.27417),
    Sketcher.Constraint("DistanceY", -1, 1, 72, 3, 8.72583),
    Sketcher.Constraint("DistanceY", -1, 1, 73, 3, 101.12583),
    Sketcher.Constraint("DistanceY", -1, 1, 62, 2, 34.52583),
    Sketcher.Constraint("DistanceX", -1, 1, 73, 3, 80.028486),
    Sketcher.Constraint("DistanceX", 75, 3, -1, 1, 34.571514),
])
sketch1.setExpression("Constraints[195]", "Params.sketch1_diameter")
sketch1.setExpression("Constraints[196]", "Params.sketch1_radius")
sketch1.setExpression("Constraints[197]", "Params.sketch1_radius2")
sketch1.setExpression("Constraints[198]", "Params.sketch1_width")
sketch1.setExpression("Constraints[199]", "Params.sketch1_width2")
pad1 = body.newObject("PartDesign::Pad", "Pad")
pad1.Profile = sketch1
pad1.setExpression("Length", "Params.pad1_length")

doc.recompute()
